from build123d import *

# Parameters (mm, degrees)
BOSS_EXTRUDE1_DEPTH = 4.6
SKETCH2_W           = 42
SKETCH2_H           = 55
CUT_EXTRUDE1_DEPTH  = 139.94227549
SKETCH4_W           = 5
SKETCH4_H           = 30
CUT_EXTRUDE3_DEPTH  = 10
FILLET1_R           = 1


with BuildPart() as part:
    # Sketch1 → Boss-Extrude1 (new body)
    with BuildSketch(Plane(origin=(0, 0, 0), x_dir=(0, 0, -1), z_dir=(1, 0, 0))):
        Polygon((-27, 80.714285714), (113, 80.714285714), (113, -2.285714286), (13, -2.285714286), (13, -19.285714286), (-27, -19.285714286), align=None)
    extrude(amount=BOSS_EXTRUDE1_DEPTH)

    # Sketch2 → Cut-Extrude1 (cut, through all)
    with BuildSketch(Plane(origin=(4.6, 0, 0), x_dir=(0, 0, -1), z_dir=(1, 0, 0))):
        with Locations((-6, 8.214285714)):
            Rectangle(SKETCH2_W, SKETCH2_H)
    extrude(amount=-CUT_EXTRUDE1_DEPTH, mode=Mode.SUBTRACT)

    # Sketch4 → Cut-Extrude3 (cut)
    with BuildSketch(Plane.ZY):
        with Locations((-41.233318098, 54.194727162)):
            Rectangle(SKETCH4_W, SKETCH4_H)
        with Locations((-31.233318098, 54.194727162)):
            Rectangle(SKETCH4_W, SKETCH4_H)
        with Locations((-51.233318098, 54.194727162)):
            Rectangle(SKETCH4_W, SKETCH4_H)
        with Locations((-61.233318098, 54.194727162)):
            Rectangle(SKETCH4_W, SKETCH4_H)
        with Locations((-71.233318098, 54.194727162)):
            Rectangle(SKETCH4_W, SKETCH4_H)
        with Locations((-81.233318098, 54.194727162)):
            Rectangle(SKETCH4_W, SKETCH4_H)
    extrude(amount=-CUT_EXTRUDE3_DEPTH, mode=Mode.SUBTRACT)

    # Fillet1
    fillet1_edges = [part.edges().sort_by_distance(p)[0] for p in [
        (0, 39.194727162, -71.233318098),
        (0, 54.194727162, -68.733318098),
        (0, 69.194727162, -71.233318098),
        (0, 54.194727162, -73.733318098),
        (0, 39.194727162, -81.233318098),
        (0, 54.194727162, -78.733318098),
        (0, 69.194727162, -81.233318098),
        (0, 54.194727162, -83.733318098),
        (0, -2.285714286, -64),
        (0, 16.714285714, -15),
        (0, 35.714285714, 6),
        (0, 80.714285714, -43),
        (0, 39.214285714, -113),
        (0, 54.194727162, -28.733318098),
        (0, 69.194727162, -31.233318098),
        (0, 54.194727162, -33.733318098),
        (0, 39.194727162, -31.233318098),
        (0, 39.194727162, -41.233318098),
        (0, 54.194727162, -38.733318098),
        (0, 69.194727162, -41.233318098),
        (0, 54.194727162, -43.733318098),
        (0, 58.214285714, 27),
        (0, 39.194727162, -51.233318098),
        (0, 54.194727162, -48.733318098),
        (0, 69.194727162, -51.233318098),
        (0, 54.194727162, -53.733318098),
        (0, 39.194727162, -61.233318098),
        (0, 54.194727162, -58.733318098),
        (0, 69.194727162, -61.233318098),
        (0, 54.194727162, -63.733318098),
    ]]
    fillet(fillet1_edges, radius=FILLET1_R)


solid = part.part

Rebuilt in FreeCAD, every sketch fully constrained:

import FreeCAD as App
import Part
import Sketcher
Q = App.Units.Quantity


def edges_at(feature, points):
    """Names of the edges that pass closest to the given points."""
    edges = feature.Shape.Edges
    near = lambda p: min(range(len(edges)), key=lambda i: edges[i].distToShape(Part.Vertex(*p))[0])
    return sorted({f"Edge{near(p) + 1}" for p in points})


def add_polygon(sketch, points):
    """Adds a closed chain of lines whose ends are joined by coincident constraints."""
    first, n = sketch.GeometryCount, len(points)
    for a, b in zip(points, points[1:] + points[:1]):
        sketch.addGeometry(Part.LineSegment(App.Vector(*a, 0), App.Vector(*b, 0)), False)
    for i in range(n):
        sketch.addConstraint(Sketcher.Constraint("Coincident", first + i, 2, first + (i + 1) % n, 1))

doc = App.newDocument("Part")
body = doc.addObject("PartDesign::Body", "Body")

# Sketch on YZ plane
sketch1 = body.newObject("Sketcher::SketchObject", "Sketch")
sketch1.AttachmentSupport = (doc.getObject("YZ_Plane"), [""])
sketch1.MapMode = "FlatFace"
add_polygon(sketch1, [(80.714286, -113), (80.714286, 27), (-19.285714, 27), (-19.285714, -13), (-2.285714, -13), (-2.285714, -113)])  # lines 0-5
sketch1.addConstraint(Sketcher.Constraint("Vertical", 0))
sketch1.addConstraint(Sketcher.Constraint("Horizontal", 1))
sketch1.addConstraint(Sketcher.Constraint("Vertical", 2))
sketch1.addConstraint(Sketcher.Constraint("Horizontal", 3))
sketch1.addConstraint(Sketcher.Constraint("Vertical", 4))
sketch1.addConstraint(Sketcher.Constraint("Horizontal", 5))
sketch1.addConstraint(Sketcher.Constraint("Equal", 1, 4))
sketch1.addConstraint(Sketcher.Constraint("DistanceX", 1, 2, 1, 1, Q("100 mm")))
sketch1.addConstraint(Sketcher.Constraint("DistanceX", 3, 1, 3, 2, Q("17 mm")))
sketch1.addConstraint(Sketcher.Constraint("DistanceY", 0, 1, 0, 2, Q("140 mm")))
sketch1.addConstraint(Sketcher.Constraint("DistanceY", -1, 1, 0, 2, Q("27 mm")))
sketch1.addConstraint(Sketcher.Constraint("DistanceX", -1, 1, 0, 2, Q("80.714286 mm")))
pad1 = body.newObject("PartDesign::Pad", "Pad")
pad1.Profile = sketch1
pad1.Length = 4.6

# Sketch on YZ plane
sketch2 = body.newObject("Sketcher::SketchObject", "Sketch001")
sketch2.AttachmentSupport = (doc.getObject("YZ_Plane"), [""])
sketch2.MapMode = "FlatFace"
sketch2.AttachmentOffset = App.Placement(App.Vector(0, 0, 4.6), App.Rotation())
add_polygon(sketch2, [(35.714286, 27), (-19.285714, 27), (-19.285714, -15), (35.714286, -15)])  # lines 0-3
sketch2.addConstraint(Sketcher.Constraint("Horizontal", 0))
sketch2.addConstraint(Sketcher.Constraint("Vertical", 1))
sketch2.addConstraint(Sketcher.Constraint("Horizontal", 2))
sketch2.addConstraint(Sketcher.Constraint("Vertical", 3))
sketch2.addConstraint(Sketcher.Constraint("DistanceX", 0, 2, 0, 1, Q("55 mm")))
sketch2.addConstraint(Sketcher.Constraint("DistanceY", 1, 2, 1, 1, Q("42 mm")))
sketch2.addConstraint(Sketcher.Constraint("DistanceY", -1, 1, 0, 2, Q("27 mm")))
sketch2.addConstraint(Sketcher.Constraint("DistanceX", 0, 2, -1, 1, Q("19.285714 mm")))
pocket1 = body.newObject("PartDesign::Pocket", "Pocket")
pocket1.Profile = sketch2
pocket1.Type = "ThroughAll"

# Sketch on YZ plane
sketch3 = body.newObject("Sketcher::SketchObject", "Sketch002")
sketch3.AttachmentSupport = (doc.getObject("YZ_Plane"), [""])
sketch3.MapMode = "FlatFace"
add_polygon(sketch3, [(69.194727, -43.733318), (39.194727, -43.733318), (39.194727, -38.733318), (69.194727, -38.733318)])  # lines 0-3
add_polygon(sketch3, [(69.194727, -33.733318), (39.194727, -33.733318), (39.194727, -28.733318), (69.194727, -28.733318)])  # lines 4-7
add_polygon(sketch3, [(69.194727, -53.733318), (39.194727, -53.733318), (39.194727, -48.733318), (69.194727, -48.733318)])  # lines 8-11
add_polygon(sketch3, [(69.194727, -63.733318), (39.194727, -63.733318), (39.194727, -58.733318), (69.194727, -58.733318)])  # lines 12-15
add_polygon(sketch3, [(69.194727, -73.733318), (39.194727, -73.733318), (39.194727, -68.733318), (69.194727, -68.733318)])  # lines 16-19
add_polygon(sketch3, [(69.194727, -83.733318), (39.194727, -83.733318), (39.194727, -78.733318), (69.194727, -78.733318)])  # lines 20-23
sketch3.addConstraint(Sketcher.Constraint("Horizontal", 0))
sketch3.addConstraint(Sketcher.Constraint("Vertical", 1))
sketch3.addConstraint(Sketcher.Constraint("Horizontal", 2))
sketch3.addConstraint(Sketcher.Constraint("Vertical", 3))
sketch3.addConstraint(Sketcher.Constraint("Horizontal", 4))
sketch3.addConstraint(Sketcher.Constraint("Vertical", 5))
sketch3.addConstraint(Sketcher.Constraint("Horizontal", 6))
sketch3.addConstraint(Sketcher.Constraint("Vertical", 7))
sketch3.addConstraint(Sketcher.Constraint("Horizontal", 8))
sketch3.addConstraint(Sketcher.Constraint("Vertical", 9))
sketch3.addConstraint(Sketcher.Constraint("Horizontal", 10))
sketch3.addConstraint(Sketcher.Constraint("Vertical", 11))
sketch3.addConstraint(Sketcher.Constraint("Horizontal", 12))
sketch3.addConstraint(Sketcher.Constraint("Vertical", 13))
sketch3.addConstraint(Sketcher.Constraint("Horizontal", 14))
sketch3.addConstraint(Sketcher.Constraint("Vertical", 15))
sketch3.addConstraint(Sketcher.Constraint("Horizontal", 16))
sketch3.addConstraint(Sketcher.Constraint("Vertical", 17))
sketch3.addConstraint(Sketcher.Constraint("Horizontal", 18))
sketch3.addConstraint(Sketcher.Constraint("Vertical", 19))
sketch3.addConstraint(Sketcher.Constraint("Horizontal", 20))
sketch3.addConstraint(Sketcher.Constraint("Vertical", 21))
sketch3.addConstraint(Sketcher.Constraint("Horizontal", 22))
sketch3.addConstraint(Sketcher.Constraint("Vertical", 23))
sketch3.addConstraint(Sketcher.Constraint("Vertical", 1, 2, 4, 2))
sketch3.addConstraint(Sketcher.Constraint("Vertical", 3, 2, 6, 2))
sketch3.addConstraint(Sketcher.Constraint("Vertical", 5, 2, 8, 2))
sketch3.addConstraint(Sketcher.Constraint("Vertical", 7, 2, 10, 2))
sketch3.addConstraint(Sketcher.Constraint("Vertical", 9, 2, 12, 2))
sketch3.addConstraint(Sketcher.Constraint("Vertical", 11, 2, 14, 2))
sketch3.addConstraint(Sketcher.Constraint("Vertical", 13, 2, 16, 2))
sketch3.addConstraint(Sketcher.Constraint("Vertical", 15, 2, 18, 2))
sketch3.addConstraint(Sketcher.Constraint("Vertical", 17, 2, 20, 2))
sketch3.addConstraint(Sketcher.Constraint("Vertical", 19, 2, 22, 2))
sketch3.addConstraint(Sketcher.Constraint("Equal", 3, 5))
sketch3.addConstraint(Sketcher.Constraint("Equal", 7, 9))
sketch3.addConstraint(Sketcher.Constraint("Equal", 11, 13))
sketch3.addConstraint(Sketcher.Constraint("Equal", 15, 17))
sketch3.addConstraint(Sketcher.Constraint("Equal", 19, 21))
sketch3.addConstraint(Sketcher.Constraint("DistanceX", 0, 2, 0, 1, Q("30 mm")))
sketch3.addConstraint(Sketcher.Constraint("DistanceY", 1, 1, 1, 2, Q("5 mm")))
sketch3.addConstraint(Sketcher.Constraint("DistanceY", 1, 2, 4, 2, Q("5 mm")))
sketch3.addConstraint(Sketcher.Constraint("DistanceY", 8, 2, 0, 2, Q("10 mm")))
sketch3.addConstraint(Sketcher.Constraint("DistanceY", 12, 2, 8, 2, Q("10 mm")))
sketch3.addConstraint(Sketcher.Constraint("DistanceY", 16, 2, 12, 2, Q("10 mm")))
sketch3.addConstraint(Sketcher.Constraint("DistanceY", 20, 2, 16, 2, Q("10 mm")))
sketch3.addConstraint(Sketcher.Constraint("DistanceY", 0, 2, -1, 1, Q("43.733318 mm")))
sketch3.addConstraint(Sketcher.Constraint("DistanceX", -1, 1, 0, 2, Q("39.194727 mm")))
pocket2 = body.newObject("PartDesign::Pocket", "Pocket001")
pocket2.Profile = sketch3
pocket2.Length = 10
pocket2.Reversed = True
doc.recompute()

fillet = body.newObject("PartDesign::Fillet", "Fillet")
fillet.Base = (pocket2, edges_at(pocket2, [
    (0, 39.195, -71.233),
    (0, 54.195, -68.733),
    (0, 69.195, -71.233),
    (0, 54.195, -73.733),
    (0, 39.195, -81.233),
    (0, 54.195, -78.733),
    (0, 69.195, -81.233),
    (0, 54.195, -83.733),
    (0, -2.286, -64),
    (0, 16.714, -15),
    (0, 35.714, 6),
    (0, 80.714, -43),
    (0, 39.214, -113),
    (0, 54.195, -28.733),
    (0, 69.195, -31.233),
    (0, 54.195, -33.733),
    (0, 39.195, -31.233),
    (0, 39.195, -41.233),
    (0, 54.195, -38.733),
    (0, 69.195, -41.233),
    (0, 54.195, -43.733),
    (0, 58.214, 27),
    (0, 39.195, -51.233),
    (0, 54.195, -48.733),
    (0, 69.195, -51.233),
    (0, 54.195, -53.733),
    (0, 39.195, -61.233),
    (0, 54.195, -58.733),
    (0, 69.195, -61.233),
    (0, 54.195, -63.733),
]))
fillet.Radius = 1

doc.recompute()
